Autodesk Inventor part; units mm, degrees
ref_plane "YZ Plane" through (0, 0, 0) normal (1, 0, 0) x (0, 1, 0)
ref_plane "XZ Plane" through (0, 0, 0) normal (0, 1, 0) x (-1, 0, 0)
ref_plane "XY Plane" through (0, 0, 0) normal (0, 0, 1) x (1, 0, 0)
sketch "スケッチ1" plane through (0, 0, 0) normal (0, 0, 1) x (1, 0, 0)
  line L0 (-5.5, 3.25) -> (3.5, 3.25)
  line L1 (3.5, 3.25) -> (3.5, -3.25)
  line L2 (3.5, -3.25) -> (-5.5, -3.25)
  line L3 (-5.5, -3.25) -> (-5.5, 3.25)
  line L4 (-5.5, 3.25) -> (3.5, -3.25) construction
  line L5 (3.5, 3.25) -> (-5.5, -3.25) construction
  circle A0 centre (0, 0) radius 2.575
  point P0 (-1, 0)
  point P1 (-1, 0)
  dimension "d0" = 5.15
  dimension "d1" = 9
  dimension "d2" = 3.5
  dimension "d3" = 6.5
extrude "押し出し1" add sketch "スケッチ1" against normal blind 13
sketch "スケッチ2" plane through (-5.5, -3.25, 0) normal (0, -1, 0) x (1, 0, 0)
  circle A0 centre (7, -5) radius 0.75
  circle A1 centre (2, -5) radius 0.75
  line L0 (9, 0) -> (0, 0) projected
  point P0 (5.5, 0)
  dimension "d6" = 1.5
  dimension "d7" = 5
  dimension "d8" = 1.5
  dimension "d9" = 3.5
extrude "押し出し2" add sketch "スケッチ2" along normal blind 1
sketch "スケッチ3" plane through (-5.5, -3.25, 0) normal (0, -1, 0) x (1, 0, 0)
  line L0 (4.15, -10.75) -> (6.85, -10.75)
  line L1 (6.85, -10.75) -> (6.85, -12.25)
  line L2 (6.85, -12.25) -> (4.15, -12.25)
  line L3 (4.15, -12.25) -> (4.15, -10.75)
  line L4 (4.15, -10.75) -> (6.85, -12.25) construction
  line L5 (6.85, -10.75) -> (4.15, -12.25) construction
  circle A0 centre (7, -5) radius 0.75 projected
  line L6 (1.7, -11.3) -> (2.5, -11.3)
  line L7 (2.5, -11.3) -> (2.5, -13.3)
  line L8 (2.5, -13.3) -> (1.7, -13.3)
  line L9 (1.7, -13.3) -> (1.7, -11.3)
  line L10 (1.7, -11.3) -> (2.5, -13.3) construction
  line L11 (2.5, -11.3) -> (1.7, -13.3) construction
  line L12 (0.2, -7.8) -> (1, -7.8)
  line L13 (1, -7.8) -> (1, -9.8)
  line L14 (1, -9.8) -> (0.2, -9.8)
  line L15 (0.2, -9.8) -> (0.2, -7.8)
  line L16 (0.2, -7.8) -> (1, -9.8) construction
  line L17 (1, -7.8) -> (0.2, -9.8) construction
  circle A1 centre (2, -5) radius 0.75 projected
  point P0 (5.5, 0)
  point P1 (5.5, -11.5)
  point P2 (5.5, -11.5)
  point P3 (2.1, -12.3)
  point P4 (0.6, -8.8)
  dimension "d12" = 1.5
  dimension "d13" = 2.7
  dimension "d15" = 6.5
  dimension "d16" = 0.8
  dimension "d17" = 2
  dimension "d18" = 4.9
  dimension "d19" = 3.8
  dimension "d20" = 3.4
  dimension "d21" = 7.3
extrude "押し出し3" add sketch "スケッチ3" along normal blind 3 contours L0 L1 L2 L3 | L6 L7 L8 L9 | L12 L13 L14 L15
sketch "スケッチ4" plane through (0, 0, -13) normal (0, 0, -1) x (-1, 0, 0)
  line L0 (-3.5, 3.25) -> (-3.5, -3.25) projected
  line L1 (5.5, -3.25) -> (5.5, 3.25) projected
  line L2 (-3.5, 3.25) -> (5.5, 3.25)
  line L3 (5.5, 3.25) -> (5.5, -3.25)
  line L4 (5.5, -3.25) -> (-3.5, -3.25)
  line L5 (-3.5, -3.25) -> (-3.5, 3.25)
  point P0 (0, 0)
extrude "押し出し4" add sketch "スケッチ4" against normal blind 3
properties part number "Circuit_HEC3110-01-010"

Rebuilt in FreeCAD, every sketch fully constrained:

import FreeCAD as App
import Part
import Sketcher

V = App.Vector
Q = App.Units.Quantity


def add_polygon(sketch, points):
    """Adds a closed chain of lines whose ends are joined by coincident constraints."""
    first, n = sketch.GeometryCount, len(points)
    for a, b in zip(points, points[1:] + points[:1]):
        sketch.addGeometry(Part.LineSegment(App.Vector(*a, 0), App.Vector(*b, 0)), False)
    for i in range(n):
        sketch.addConstraint(Sketcher.Constraint("Coincident", first + i, 2, first + (i + 1) % n, 1))

doc = App.newDocument("Part")
body = doc.addObject("PartDesign::Body", "Body")

# Sketch on XY plane
sketch1 = doc.addObject("Sketcher::SketchObject", "Sketch")
body.addObject(sketch1)
sketch1.AttachmentSupport = (doc.XY_Plane, [""])
sketch1.MapMode = "FlatFace"
add_polygon(sketch1, [(3.5, 3.25), (-5.5, 3.25), (-5.5, -3.25), (3.5, -3.25)])  # lines 0-3
sketch1.addGeometry(Part.Circle(V(0, 0, 0), V(0, 0, 1), 2.575), False)  # 4
sketch1.addConstraint([
    Sketcher.Constraint("Horizontal", 0),
    Sketcher.Constraint("Vertical", 1),
    Sketcher.Constraint("Horizontal", 2),
    Sketcher.Constraint("Vertical", 3),
    Sketcher.Constraint("Coincident", 4, 3, -1, 1),
    Sketcher.Constraint("Diameter", 4, Q("5.15 mm")),
    Sketcher.Constraint("DistanceX", 0, 2, 0, 1, Q("9 mm")),
    Sketcher.Constraint("DistanceY", 1, 2, 1, 1, Q("6.5 mm")),
    Sketcher.Constraint("DistanceX", -1, 1, 2, 2, Q("3.5 mm")),
    Sketcher.Constraint("DistanceY", -1, 1, 0, 2, Q("3.25 mm")),
])
pad1 = doc.addObject("PartDesign::Pad", "Pad")
body.addObject(pad1)
pad1.Profile = sketch1
pad1.Length = 13
pad1.Reversed = True

# Sketch on XZ plane
sketch2 = doc.addObject("Sketcher::SketchObject", "Sketch001")
body.addObject(sketch2)
sketch2.AttachmentSupport = (doc.XZ_Plane, [""])
sketch2.MapMode = "FlatFace"
sketch2.AttachmentOffset = App.Placement(V(0, 0, 3.25), App.Rotation())
sketch2.addGeometry([
    Part.Circle(V(1.5, -5, 0), V(0, 0, 1), 0.75),
    Part.Circle(V(-3.5, -5, 0), V(0, 0, 1), 0.75),
], False)
sketch2.addConstraint([
    Sketcher.Constraint("Equal", 0, 1),
    Sketcher.Constraint("Horizontal", 0, 3, 1, 3),
    Sketcher.Constraint("Diameter", 0, Q("1.5 mm")),
    Sketcher.Constraint("DistanceY", 0, 3, -1, 1, Q("5 mm")),
    Sketcher.Constraint("DistanceX", 1, 3, 0, 3, Q("5 mm")),
    Sketcher.Constraint("DistanceX", -1, 1, 0, 3, Q("1.5 mm")),
])
pad2 = doc.addObject("PartDesign::Pad", "Pad001")
body.addObject(pad2)
pad2.Profile = sketch2
pad2.Length = 1

# Sketch on XZ plane
sketch3 = doc.addObject("Sketcher::SketchObject", "Sketch002")
body.addObject(sketch3)
sketch3.AttachmentSupport = (doc.XZ_Plane, [""])
sketch3.MapMode = "FlatFace"
sketch3.AttachmentOffset = App.Placement(V(0, 0, 3.25), App.Rotation())
add_polygon(sketch3, [(1.35, -10.75), (-1.35, -10.75), (-1.35, -12.25), (1.35, -12.25)])  # lines 0-3
add_polygon(sketch3, [(-3, -11.3), (-3.8, -11.3), (-3.8, -13.3), (-3, -13.3)])  # lines 4-7
add_polygon(sketch3, [(-4.5, -7.8), (-5.3, -7.8), (-5.3, -9.8), (-4.5, -9.8)])  # lines 8-11
sketch3.addConstraint([
    Sketcher.Constraint("Horizontal", 0),
    Sketcher.Constraint("Vertical", 1),
    Sketcher.Constraint("Horizontal", 2),
    Sketcher.Constraint("Vertical", 3),
    Sketcher.Constraint("Horizontal", 4),
    Sketcher.Constraint("Vertical", 5),
    Sketcher.Constraint("Horizontal", 6),
    Sketcher.Constraint("Vertical", 7),
    Sketcher.Constraint("Horizontal", 8),
    Sketcher.Constraint("Vertical", 9),
    Sketcher.Constraint("Horizontal", 10),
    Sketcher.Constraint("Vertical", 11),
    Sketcher.Constraint("Equal", 6, 8),
    Sketcher.Constraint("Equal", 7, 9),
    Sketcher.Constraint("DistanceY", 5, 2, 5, 1, Q("2 mm")),
    Sketcher.Constraint("DistanceX", 0, 2, 0, 1, Q("2.7 mm")),
    Sketcher.Constraint("DistanceX", 4, 2, 4, 1, Q("0.8 mm")),
    Sketcher.Constraint("DistanceY", 1, 2, 1, 1, Q("1.5 mm")),
    Sketcher.Constraint("DistanceX", 4, 2, -1, 1, Q("3.8 mm")),
    Sketcher.Constraint("DistanceX", 8, 2, 4, 2, Q("1.5 mm")),
    Sketcher.Constraint("DistanceY", 4, 2, 9, 2, Q("1.5 mm")),
    Sketcher.Constraint("DistanceY", 4, 2, -1, 1, Q("11.3 mm")),
    Sketcher.Constraint("DistanceX", 0, 2, -1, 1, Q("1.35 mm")),
    Sketcher.Constraint("DistanceY", 0, 2, -1, 1, Q("10.75 mm")),
])
pad3 = doc.addObject("PartDesign::Pad", "Pad002")
body.addObject(pad3)
pad3.Profile = sketch3
pad3.Length = 3

# Sketch on XY plane
sketch4 = doc.addObject("Sketcher::SketchObject", "Sketch003")
body.addObject(sketch4)
sketch4.AttachmentSupport = (doc.XY_Plane, [""])
sketch4.MapMode = "FlatFace"
sketch4.AttachmentOffset = App.Placement(V(0, 0, -13), App.Rotation())
add_polygon(sketch4, [(-5.5, 3.25), (3.5, 3.25), (3.5, -3.25), (-5.5, -3.25)])  # lines 0-3
sketch4.addConstraint([
    Sketcher.Constraint("Horizontal", 0),
    Sketcher.Constraint("Vertical", 1),
    Sketcher.Constraint("Horizontal", 2),
    Sketcher.Constraint("Vertical", 3),
    Sketcher.Constraint("DistanceX", 0, 1, 0, 2, Q("9 mm")),
    Sketcher.Constraint("DistanceY", 1, 2, 1, 1, Q("6.5 mm")),
    Sketcher.Constraint("DistanceX", -1, 1, 0, 2, Q("3.5 mm")),
    Sketcher.Constraint("DistanceY", -1, 1, 0, 2, Q("3.25 mm")),
])
pad4 = doc.addObject("PartDesign::Pad", "Pad003")
body.addObject(pad4)
pad4.Profile = sketch4
pad4.Length = 3

doc.recompute()
